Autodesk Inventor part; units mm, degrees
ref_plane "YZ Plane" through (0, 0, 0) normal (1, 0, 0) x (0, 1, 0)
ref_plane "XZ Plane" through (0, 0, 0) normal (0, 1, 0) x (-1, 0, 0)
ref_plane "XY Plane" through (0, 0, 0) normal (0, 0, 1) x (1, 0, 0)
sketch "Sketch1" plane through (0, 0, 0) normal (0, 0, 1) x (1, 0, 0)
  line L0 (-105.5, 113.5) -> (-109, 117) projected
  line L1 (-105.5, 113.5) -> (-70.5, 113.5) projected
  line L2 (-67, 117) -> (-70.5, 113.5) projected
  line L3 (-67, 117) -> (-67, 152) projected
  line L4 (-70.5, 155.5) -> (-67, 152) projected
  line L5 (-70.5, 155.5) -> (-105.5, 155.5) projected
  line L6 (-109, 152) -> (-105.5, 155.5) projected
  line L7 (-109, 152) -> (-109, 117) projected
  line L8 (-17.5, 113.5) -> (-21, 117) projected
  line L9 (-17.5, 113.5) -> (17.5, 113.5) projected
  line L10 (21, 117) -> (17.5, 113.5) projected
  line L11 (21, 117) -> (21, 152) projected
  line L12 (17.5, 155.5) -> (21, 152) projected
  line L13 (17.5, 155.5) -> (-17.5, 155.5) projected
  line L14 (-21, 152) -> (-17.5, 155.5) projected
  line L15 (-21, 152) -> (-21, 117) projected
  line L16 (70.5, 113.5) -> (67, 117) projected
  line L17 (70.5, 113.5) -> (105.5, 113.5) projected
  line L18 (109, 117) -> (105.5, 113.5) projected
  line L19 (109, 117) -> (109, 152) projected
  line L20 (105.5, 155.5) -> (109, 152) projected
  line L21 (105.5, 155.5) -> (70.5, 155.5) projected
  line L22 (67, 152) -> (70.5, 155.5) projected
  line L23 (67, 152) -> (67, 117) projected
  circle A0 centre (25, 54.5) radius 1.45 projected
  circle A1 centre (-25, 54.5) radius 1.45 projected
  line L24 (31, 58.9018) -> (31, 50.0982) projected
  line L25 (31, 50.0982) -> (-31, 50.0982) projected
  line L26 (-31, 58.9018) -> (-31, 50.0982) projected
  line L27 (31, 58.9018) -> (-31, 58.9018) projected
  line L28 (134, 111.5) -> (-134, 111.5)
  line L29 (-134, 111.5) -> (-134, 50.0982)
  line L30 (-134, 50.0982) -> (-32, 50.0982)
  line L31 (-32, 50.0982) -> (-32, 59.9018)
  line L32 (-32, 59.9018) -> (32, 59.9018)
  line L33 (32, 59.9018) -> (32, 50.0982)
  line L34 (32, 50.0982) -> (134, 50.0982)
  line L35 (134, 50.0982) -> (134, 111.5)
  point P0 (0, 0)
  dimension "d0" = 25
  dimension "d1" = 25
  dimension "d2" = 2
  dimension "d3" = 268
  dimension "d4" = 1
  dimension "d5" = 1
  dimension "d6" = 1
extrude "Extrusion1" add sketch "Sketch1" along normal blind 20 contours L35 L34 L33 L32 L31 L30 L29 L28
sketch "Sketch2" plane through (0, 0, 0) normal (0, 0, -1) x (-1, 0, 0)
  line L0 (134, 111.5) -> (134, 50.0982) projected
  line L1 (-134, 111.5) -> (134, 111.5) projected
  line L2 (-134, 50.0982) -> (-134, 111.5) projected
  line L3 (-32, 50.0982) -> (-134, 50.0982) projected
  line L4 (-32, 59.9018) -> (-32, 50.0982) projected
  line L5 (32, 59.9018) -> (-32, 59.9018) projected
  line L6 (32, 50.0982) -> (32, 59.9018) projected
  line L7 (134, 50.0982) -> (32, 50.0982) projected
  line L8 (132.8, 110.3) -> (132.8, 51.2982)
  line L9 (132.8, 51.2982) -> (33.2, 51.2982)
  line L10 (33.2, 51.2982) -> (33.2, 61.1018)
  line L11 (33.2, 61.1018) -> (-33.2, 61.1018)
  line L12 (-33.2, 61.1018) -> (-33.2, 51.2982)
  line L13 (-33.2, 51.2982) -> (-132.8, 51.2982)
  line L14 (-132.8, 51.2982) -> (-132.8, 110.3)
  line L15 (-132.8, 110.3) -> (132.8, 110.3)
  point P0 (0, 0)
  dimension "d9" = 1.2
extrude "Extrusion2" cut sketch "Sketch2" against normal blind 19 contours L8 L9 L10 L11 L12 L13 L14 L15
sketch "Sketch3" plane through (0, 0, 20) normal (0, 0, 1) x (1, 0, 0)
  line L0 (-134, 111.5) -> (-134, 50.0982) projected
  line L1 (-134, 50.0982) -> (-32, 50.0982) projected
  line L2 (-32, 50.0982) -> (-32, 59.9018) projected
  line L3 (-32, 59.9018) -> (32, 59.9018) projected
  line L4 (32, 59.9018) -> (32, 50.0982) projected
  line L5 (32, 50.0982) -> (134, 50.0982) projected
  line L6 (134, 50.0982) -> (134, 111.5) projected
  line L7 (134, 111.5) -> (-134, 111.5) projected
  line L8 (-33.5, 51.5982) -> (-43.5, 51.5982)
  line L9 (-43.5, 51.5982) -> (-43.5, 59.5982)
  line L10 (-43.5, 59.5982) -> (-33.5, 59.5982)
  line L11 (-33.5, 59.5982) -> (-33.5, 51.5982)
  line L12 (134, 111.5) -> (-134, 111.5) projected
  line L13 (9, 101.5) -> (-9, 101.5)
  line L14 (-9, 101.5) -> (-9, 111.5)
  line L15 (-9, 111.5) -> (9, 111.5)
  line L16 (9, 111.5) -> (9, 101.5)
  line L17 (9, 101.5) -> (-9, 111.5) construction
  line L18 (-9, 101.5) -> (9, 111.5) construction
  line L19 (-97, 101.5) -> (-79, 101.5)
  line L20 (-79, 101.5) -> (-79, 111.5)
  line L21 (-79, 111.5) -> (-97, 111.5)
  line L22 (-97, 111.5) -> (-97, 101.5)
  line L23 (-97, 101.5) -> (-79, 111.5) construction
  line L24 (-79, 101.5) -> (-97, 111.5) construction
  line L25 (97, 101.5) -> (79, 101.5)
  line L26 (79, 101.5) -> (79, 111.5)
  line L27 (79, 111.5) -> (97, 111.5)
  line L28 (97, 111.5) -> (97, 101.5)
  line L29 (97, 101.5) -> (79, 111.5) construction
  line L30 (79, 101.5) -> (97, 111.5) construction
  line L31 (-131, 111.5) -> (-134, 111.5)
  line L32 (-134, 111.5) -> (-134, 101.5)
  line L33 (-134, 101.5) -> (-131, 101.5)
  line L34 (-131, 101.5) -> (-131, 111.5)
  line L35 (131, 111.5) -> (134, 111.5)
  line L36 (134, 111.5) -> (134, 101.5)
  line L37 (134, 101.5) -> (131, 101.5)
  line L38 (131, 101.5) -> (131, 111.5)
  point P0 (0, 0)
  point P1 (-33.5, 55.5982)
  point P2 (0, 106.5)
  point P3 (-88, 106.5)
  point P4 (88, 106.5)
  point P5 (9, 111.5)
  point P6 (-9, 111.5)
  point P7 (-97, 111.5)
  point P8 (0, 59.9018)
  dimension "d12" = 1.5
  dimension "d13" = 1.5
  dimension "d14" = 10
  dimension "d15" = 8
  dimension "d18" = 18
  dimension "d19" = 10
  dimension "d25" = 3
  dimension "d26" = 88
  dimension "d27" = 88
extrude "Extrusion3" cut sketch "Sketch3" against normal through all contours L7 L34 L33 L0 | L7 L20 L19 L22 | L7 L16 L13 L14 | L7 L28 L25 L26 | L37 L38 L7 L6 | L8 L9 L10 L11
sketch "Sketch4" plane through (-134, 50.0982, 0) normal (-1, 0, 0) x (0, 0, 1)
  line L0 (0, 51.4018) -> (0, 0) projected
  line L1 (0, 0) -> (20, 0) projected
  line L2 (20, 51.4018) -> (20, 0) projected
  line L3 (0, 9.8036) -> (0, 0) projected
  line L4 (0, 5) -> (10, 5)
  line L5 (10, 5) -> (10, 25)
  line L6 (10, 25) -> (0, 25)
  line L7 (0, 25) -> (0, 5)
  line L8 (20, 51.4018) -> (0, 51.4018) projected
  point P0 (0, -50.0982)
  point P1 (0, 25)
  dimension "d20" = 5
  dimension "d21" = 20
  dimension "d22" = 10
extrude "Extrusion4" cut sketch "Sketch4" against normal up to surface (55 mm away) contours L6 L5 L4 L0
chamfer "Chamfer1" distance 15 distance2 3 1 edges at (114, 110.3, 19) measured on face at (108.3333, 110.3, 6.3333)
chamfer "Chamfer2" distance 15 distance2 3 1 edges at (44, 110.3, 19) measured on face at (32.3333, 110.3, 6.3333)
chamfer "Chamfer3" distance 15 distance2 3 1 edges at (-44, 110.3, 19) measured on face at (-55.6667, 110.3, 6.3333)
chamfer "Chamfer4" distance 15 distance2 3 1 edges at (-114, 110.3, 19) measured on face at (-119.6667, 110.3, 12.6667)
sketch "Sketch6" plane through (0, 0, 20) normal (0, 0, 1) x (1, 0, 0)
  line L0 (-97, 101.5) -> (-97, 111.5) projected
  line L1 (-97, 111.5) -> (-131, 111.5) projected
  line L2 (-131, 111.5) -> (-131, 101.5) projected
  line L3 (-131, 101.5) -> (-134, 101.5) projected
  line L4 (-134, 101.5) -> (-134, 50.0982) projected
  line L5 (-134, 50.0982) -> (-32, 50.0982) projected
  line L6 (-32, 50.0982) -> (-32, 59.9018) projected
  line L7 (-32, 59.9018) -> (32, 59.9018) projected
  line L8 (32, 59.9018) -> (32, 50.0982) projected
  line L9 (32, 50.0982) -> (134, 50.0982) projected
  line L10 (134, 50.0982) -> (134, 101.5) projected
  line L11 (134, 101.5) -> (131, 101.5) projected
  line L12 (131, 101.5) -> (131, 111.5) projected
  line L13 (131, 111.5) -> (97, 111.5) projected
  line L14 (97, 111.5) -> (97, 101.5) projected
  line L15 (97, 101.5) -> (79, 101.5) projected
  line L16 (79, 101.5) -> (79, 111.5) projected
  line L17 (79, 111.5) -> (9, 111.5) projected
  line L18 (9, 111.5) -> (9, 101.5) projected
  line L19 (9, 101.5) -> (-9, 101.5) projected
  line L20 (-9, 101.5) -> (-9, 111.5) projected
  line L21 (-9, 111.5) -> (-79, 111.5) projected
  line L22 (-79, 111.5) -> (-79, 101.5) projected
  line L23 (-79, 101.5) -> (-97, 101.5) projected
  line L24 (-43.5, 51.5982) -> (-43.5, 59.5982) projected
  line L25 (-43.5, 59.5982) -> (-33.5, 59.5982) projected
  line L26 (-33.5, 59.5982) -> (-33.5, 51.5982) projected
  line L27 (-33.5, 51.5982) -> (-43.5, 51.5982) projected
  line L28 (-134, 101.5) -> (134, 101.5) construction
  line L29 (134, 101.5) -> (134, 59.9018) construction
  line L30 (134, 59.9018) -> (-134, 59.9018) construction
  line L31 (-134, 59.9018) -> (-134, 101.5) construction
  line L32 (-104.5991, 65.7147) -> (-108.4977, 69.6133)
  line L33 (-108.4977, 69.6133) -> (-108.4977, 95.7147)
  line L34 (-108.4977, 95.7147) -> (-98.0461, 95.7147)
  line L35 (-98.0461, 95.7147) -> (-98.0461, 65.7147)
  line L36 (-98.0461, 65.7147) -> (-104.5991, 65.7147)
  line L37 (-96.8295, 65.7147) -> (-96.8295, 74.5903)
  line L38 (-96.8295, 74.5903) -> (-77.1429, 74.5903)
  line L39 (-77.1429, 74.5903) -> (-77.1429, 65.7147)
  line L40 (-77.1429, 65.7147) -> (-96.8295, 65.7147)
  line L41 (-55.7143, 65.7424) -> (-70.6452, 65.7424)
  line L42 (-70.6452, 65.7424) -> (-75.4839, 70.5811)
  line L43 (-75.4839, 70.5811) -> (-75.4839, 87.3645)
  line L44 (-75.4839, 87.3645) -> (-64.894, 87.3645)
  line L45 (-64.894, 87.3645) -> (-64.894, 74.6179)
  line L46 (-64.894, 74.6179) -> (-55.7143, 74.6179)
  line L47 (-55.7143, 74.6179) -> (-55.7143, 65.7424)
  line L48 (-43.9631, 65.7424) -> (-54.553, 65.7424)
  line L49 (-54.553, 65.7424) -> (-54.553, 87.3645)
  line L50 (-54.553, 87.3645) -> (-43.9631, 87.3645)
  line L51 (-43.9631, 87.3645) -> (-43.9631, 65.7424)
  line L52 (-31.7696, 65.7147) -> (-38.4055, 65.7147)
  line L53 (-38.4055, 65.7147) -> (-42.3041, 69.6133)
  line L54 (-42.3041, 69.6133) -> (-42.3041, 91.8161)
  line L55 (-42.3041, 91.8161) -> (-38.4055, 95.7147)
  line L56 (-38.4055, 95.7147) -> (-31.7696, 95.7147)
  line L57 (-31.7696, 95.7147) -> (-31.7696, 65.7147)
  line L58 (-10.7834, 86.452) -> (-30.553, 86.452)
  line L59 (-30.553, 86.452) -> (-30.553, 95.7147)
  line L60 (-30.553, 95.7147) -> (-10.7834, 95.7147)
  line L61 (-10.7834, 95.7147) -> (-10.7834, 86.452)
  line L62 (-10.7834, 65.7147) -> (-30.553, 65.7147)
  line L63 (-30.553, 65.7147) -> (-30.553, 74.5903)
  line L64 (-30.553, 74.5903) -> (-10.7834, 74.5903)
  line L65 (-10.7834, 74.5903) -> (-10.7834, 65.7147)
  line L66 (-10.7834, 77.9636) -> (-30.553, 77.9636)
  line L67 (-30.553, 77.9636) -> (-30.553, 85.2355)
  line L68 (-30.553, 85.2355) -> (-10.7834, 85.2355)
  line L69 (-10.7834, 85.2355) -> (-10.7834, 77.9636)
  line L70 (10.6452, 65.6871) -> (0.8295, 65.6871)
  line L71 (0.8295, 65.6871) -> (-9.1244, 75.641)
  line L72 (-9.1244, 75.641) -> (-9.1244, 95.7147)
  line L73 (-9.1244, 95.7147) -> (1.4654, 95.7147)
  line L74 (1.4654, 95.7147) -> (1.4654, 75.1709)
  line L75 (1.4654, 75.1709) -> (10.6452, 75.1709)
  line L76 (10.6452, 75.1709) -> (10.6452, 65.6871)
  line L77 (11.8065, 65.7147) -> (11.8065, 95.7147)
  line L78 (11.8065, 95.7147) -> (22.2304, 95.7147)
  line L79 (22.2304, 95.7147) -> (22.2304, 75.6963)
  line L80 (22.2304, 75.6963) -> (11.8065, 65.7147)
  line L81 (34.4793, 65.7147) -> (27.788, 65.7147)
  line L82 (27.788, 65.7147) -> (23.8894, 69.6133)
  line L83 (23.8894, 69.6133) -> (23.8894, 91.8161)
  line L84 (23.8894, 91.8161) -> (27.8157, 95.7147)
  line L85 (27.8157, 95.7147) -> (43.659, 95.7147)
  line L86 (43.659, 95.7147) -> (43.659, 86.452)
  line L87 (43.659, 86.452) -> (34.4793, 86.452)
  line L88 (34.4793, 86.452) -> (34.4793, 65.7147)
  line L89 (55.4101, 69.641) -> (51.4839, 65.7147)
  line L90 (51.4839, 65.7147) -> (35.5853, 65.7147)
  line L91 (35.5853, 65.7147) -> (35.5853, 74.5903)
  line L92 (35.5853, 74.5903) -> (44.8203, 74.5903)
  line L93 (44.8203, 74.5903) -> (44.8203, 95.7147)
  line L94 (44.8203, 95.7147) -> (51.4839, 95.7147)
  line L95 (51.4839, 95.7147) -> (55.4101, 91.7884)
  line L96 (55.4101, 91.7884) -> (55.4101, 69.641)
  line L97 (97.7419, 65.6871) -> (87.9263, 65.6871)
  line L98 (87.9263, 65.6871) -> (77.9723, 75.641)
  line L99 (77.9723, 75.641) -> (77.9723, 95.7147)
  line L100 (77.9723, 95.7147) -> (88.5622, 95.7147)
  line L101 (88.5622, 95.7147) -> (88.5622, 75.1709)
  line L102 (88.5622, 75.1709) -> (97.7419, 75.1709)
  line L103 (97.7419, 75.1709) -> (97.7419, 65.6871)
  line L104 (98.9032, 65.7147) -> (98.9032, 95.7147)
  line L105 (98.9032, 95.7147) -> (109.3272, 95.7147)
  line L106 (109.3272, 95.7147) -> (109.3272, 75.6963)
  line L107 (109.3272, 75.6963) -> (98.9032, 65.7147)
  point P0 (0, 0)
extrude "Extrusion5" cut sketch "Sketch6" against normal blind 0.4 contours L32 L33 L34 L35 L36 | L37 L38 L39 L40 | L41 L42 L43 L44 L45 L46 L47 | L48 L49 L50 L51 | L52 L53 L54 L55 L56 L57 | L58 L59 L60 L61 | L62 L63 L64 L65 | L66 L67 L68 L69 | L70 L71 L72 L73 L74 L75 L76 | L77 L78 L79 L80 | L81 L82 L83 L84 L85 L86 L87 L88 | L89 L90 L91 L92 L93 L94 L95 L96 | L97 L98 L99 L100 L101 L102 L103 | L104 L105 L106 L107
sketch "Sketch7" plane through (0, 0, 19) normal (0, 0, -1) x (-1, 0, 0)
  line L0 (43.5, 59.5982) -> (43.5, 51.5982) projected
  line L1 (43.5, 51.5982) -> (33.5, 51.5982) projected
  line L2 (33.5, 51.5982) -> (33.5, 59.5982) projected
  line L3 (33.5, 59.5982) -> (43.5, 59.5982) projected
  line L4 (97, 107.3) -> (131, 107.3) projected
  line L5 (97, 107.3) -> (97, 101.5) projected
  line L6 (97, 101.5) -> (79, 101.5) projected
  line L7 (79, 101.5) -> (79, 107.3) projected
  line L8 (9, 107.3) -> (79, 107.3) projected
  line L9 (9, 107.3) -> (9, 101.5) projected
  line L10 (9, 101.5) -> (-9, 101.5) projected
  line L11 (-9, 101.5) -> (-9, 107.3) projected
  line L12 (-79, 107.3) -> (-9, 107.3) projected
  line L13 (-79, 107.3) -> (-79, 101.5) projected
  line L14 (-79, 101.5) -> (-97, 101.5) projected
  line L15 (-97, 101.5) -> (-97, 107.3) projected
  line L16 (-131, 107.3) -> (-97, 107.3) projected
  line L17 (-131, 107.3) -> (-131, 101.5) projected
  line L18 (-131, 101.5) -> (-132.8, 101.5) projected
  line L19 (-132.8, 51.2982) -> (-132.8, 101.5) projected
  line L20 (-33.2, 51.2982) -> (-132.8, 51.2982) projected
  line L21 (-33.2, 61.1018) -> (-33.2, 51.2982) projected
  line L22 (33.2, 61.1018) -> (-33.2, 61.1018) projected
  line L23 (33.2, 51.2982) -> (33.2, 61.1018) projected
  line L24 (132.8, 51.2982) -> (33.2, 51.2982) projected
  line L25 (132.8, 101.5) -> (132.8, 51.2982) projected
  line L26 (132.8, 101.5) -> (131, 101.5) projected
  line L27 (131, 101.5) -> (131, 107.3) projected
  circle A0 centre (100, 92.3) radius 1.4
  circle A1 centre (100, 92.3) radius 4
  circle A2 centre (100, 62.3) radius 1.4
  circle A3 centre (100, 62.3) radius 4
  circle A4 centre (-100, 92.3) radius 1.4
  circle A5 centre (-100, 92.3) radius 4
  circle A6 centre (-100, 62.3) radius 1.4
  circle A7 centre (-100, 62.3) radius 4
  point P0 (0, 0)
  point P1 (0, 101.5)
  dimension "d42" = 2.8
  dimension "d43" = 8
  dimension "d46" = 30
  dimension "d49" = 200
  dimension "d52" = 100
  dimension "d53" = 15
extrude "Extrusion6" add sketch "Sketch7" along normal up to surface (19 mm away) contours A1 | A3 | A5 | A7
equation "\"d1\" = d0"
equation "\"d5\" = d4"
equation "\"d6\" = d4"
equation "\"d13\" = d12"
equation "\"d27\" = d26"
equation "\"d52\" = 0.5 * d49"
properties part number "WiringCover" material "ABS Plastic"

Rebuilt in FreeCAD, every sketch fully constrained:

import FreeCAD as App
import Part
import Sketcher
from FreeCAD import Vector
Q = App.Units.Quantity


def edges_at(feature, points):
    """Names of the edges that pass closest to the given points."""
    edges = feature.Shape.Edges
    near = lambda p: min(range(len(edges)), key=lambda i: edges[i].distToShape(Part.Vertex(*p))[0])
    return sorted({f"Edge{near(p) + 1}" for p in points})


def add_polygon(sketch, points):
    """Adds a closed chain of lines whose ends are joined by coincident constraints."""
    first, n = sketch.GeometryCount, len(points)
    for a, b in zip(points, points[1:] + points[:1]):
        sketch.addGeometry(Part.LineSegment(App.Vector(*a, 0), App.Vector(*b, 0)), False)
    for i in range(n):
        sketch.addConstraint(Sketcher.Constraint("Coincident", first + i, 2, first + (i + 1) % n, 1))

doc = App.newDocument("Part")
body = doc.addObject("PartDesign::Body", "Body")

# Sketch on XY plane
sketch1 = body.newObject("Sketcher::SketchObject", "Sketch")
sketch1.AttachmentSupport = (doc.getObject("XY_Plane"), [""])
sketch1.MapMode = "FlatFace"
add_polygon(sketch1, [(134, 50), (134, 112), (-134, 112), (-134, 50), (-32, 50), (-32, 60), (32, 60), (32, 50)])  # lines 0-7
sketch1.addConstraint(Sketcher.Constraint("Vertical", 0))
sketch1.addConstraint(Sketcher.Constraint("Horizontal", 1))
sketch1.addConstraint(Sketcher.Constraint("Vertical", 2))
sketch1.addConstraint(Sketcher.Constraint("Horizontal", 3))
sketch1.addConstraint(Sketcher.Constraint("Vertical", 4))
sketch1.addConstraint(Sketcher.Constraint("Horizontal", 5))
sketch1.addConstraint(Sketcher.Constraint("Vertical", 6))
sketch1.addConstraint(Sketcher.Constraint("Horizontal", 7))
sketch1.addConstraint(Sketcher.Constraint("Symmetric", 3, 2, 6, 2, -2))
sketch1.addConstraint(Sketcher.Constraint("Equal", 3, 7))
sketch1.addConstraint(Sketcher.Constraint("DistanceX", 1, 2, 1, 1, Q("268 mm")))
sketch1.addConstraint(Sketcher.Constraint("DistanceX", 3, 1, 3, 2, Q("102 mm")))
sketch1.addConstraint(Sketcher.Constraint("DistanceY", -1, 1, 0, 2, Q("111.5 mm")))
sketch1.addConstraint(Sketcher.Constraint("DistanceY", 0, 1, 0, 2, Q("61.4018 mm")))
sketch1.addConstraint(Sketcher.Constraint("DistanceY", 4, 1, 4, 2, Q("9.8036 mm")))
pad1 = body.newObject("PartDesign::Pad", "Pad")
pad1.Profile = sketch1
pad1.Length = 20

# Sketch on XY plane
sketch2 = body.newObject("Sketcher::SketchObject", "Sketch001")
sketch2.AttachmentSupport = (doc.getObject("XY_Plane"), [""])
sketch2.MapMode = "FlatFace"
add_polygon(sketch2, [(-133, 51), (-133, 110), (133, 110), (133, 51), (33, 51), (33, 61), (-33, 61), (-33, 51)])  # lines 0-7
sketch2.addConstraint(Sketcher.Constraint("Vertical", 0))
sketch2.addConstraint(Sketcher.Constraint("Horizontal", 1))
sketch2.addConstraint(Sketcher.Constraint("Vertical", 2))
sketch2.addConstraint(Sketcher.Constraint("Horizontal", 3))
sketch2.addConstraint(Sketcher.Constraint("Vertical", 4))
sketch2.addConstraint(Sketcher.Constraint("Horizontal", 5))
sketch2.addConstraint(Sketcher.Constraint("Vertical", 6))
sketch2.addConstraint(Sketcher.Constraint("Horizontal", 7))
sketch2.addConstraint(Sketcher.Constraint("Symmetric", 3, 2, 6, 2, -2))
sketch2.addConstraint(Sketcher.Constraint("Equal", 3, 7))
sketch2.addConstraint(Sketcher.Constraint("DistanceX", 1, 1, 1, 2, Q("265.6 mm")))
sketch2.addConstraint(Sketcher.Constraint("DistanceX", 3, 2, 3, 1, Q("99.6 mm")))
sketch2.addConstraint(Sketcher.Constraint("DistanceY", -1, 1, 0, 2, Q("110.3 mm")))
sketch2.addConstraint(Sketcher.Constraint("DistanceY", 0, 1, 0, 2, Q("59.0018 mm")))
sketch2.addConstraint(Sketcher.Constraint("DistanceY", 4, 1, 4, 2, Q("9.8036 mm")))
pocket1 = body.newObject("PartDesign::Pocket", "Pocket")
pocket1.Profile = sketch2
pocket1.Length = 19
pocket1.Reversed = True

# Sketch on XY plane
sketch3 = body.newObject("Sketcher::SketchObject", "Sketch002")
sketch3.AttachmentSupport = (doc.getObject("XY_Plane"), [""])
sketch3.MapMode = "FlatFace"
sketch3.AttachmentOffset = App.Placement(Vector(0, 0, 20), App.Rotation())
add_polygon(sketch3, [(-131, 111.5), (-134, 111.5), (-134, 101.5), (-131, 101.5)])  # lines 0-3
add_polygon(sketch3, [(-79, 111.5), (-97, 111.5), (-97, 101.5), (-79, 101.5)])  # lines 4-7
add_polygon(sketch3, [(9, 111.5), (-9, 111.5), (-9, 101.5), (9, 101.5)])  # lines 8-11
add_polygon(sketch3, [(97, 111.5), (79, 111.5), (79, 101.5), (97, 101.5)])  # lines 12-15
add_polygon(sketch3, [(131, 101.5), (134, 101.5), (134, 111.5), (131, 111.5)])  # lines 16-19
add_polygon(sketch3, [(-43.5, 51.6), (-33.5, 51.6), (-33.5, 59.6), (-43.5, 59.6)])  # lines 20-23
sketch3.addConstraint(Sketcher.Constraint("Horizontal", 0))
sketch3.addConstraint(Sketcher.Constraint("Vertical", 1))
sketch3.addConstraint(Sketcher.Constraint("Horizontal", 2))
sketch3.addConstraint(Sketcher.Constraint("Vertical", 3))
sketch3.addConstraint(Sketcher.Constraint("Horizontal", 4))
sketch3.addConstraint(Sketcher.Constraint("Vertical", 5))
sketch3.addConstraint(Sketcher.Constraint("Horizontal", 6))
sketch3.addConstraint(Sketcher.Constraint("Vertical", 7))
sketch3.addConstraint(Sketcher.Constraint("Horizontal", 8))
sketch3.addConstraint(Sketcher.Constraint("Vertical", 9))
sketch3.addConstraint(Sketcher.Constraint("Horizontal", 10))
sketch3.addConstraint(Sketcher.Constraint("Vertical", 11))
sketch3.addConstraint(Sketcher.Constraint("Horizontal", 12))
sketch3.addConstraint(Sketcher.Constraint("Vertical", 13))
sketch3.addConstraint(Sketcher.Constraint("Horizontal", 14))
sketch3.addConstraint(Sketcher.Constraint("Vertical", 15))
sketch3.addConstraint(Sketcher.Constraint("Horizontal", 16))
sketch3.addConstraint(Sketcher.Constraint("Vertical", 17))
sketch3.addConstraint(Sketcher.Constraint("Horizontal", 18))
sketch3.addConstraint(Sketcher.Constraint("Vertical", 19))
sketch3.addConstraint(Sketcher.Constraint("Horizontal", 20))
sketch3.addConstraint(Sketcher.Constraint("Vertical", 21))
sketch3.addConstraint(Sketcher.Constraint("Horizontal", 22))
sketch3.addConstraint(Sketcher.Constraint("Vertical", 23))
sketch3.addConstraint(Sketcher.Constraint("Symmetric", 7, 2, 12, 2, -2))
sketch3.addConstraint(Sketcher.Constraint("Symmetric", 5, 2, 14, 2, -2))
sketch3.addConstraint(Sketcher.Constraint("Symmetric", 1, 2, 16, 2, -2))
sketch3.addConstraint(Sketcher.Constraint("Symmetric", 3, 2, 18, 2, -2))
sketch3.addConstraint(Sketcher.Constraint("Horizontal", 3, 2, 4, 2))
sketch3.addConstraint(Sketcher.Constraint("Horizontal", 2, 2, 5, 2))
sketch3.addConstraint(Sketcher.Constraint("Horizontal", 7, 2, 8, 2))
sketch3.addConstraint(Sketcher.Constraint("Horizontal", 6, 2, 9, 2))
sketch3.addConstraint(Sketcher.Constraint("Equal", 6, 8))
sketch3.addConstraint(Sketcher.Constraint("Equal", 22, 1))
sketch3.addConstraint(Sketcher.Constraint("DistanceX", 0, 2, 0, 1, Q("3 mm")))
sketch3.addConstraint(Sketcher.Constraint("DistanceX", 4, 2, 4, 1, Q("18 mm")))
sketch3.addConstraint(Sketcher.Constraint("DistanceX", 20, 1, 20, 2, Q("10 mm")))
sketch3.addConstraint(Sketcher.Constraint("DistanceY", 21, 1, 21, 2, Q("8 mm")))
sketch3.addConstraint(Sketcher.Constraint("DistanceX", 4, 2, 8, 2, Q("88 mm")))
sketch3.addConstraint(Sketcher.Constraint("DistanceX", 8, 2, 12, 2, Q("88 mm")))
sketch3.addConstraint(Sketcher.Constraint("DistanceX", 0, 2, -1, 1, Q("134 mm")))
sketch3.addConstraint(Sketcher.Constraint("DistanceY", -1, 1, 0, 2, Q("111.5 mm")))
sketch3.addConstraint(Sketcher.Constraint("DistanceX", 20, 2, -1, 1, Q("33.5 mm")))
sketch3.addConstraint(Sketcher.Constraint("DistanceY", -1, 1, 20, 2, Q("51.5982 mm")))
pocket2 = body.newObject("PartDesign::Pocket", "Pocket001")
pocket2.Profile = sketch3
pocket2.Type = "ThroughAll"

# Sketch on YZ plane
sketch4 = body.newObject("Sketcher::SketchObject", "Sketch003")
sketch4.AttachmentSupport = (doc.getObject("YZ_Plane"), [""])
sketch4.MapMode = "FlatFace"
sketch4.AttachmentOffset = App.Placement(Vector(0, 0, -134), App.Rotation())
add_polygon(sketch4, [(75, 10), (75, 0), (55, 0), (55, 10)])  # lines 0-3
sketch4.addConstraint(Sketcher.Constraint("Vertical", 0))
sketch4.addConstraint(Sketcher.Constraint("Horizontal", 1))
sketch4.addConstraint(Sketcher.Constraint("Vertical", 2))
sketch4.addConstraint(Sketcher.Constraint("Horizontal", 3))
sketch4.addConstraint(Sketcher.Constraint("PointOnObject", 0, 2, -1))
sketch4.addConstraint(Sketcher.Constraint("DistanceX", 1, 2, 1, 1, Q("20 mm")))
sketch4.addConstraint(Sketcher.Constraint("DistanceY", 0, 2, 0, 1, Q("10 mm")))
sketch4.addConstraint(Sketcher.Constraint("DistanceX", -1, 1, 0, 2, Q("75.0982 mm")))
pocket3 = body.newObject("PartDesign::Pocket", "Pocket002")
pocket3.Profile = sketch4
pocket3.Length = 55
pocket3.Reversed = True
doc.recompute()

chamfer = body.newObject("PartDesign::Chamfer", "Chamfer")
chamfer.Base = (pocket3, edges_at(pocket3, [(114, 110.3, 19)]))
chamfer.ChamferType = "Two distances"
chamfer.Size = 15
chamfer.Size2 = 3
chamfer.FlipDirection = True
doc.recompute()

chamfer2 = body.newObject("PartDesign::Chamfer", "Chamfer001")
chamfer2.Base = (chamfer, edges_at(chamfer, [(44, 110.3, 19)]))
chamfer2.ChamferType = "Two distances"
chamfer2.Size = 15
chamfer2.Size2 = 3
chamfer2.FlipDirection = True
doc.recompute()

chamfer3 = body.newObject("PartDesign::Chamfer", "Chamfer002")
chamfer3.Base = (chamfer2, edges_at(chamfer2, [(-44, 110.3, 19)]))
chamfer3.ChamferType = "Two distances"
chamfer3.Size = 15
chamfer3.Size2 = 3
chamfer3.FlipDirection = True
doc.recompute()

chamfer4 = body.newObject("PartDesign::Chamfer", "Chamfer003")
chamfer4.Base = (chamfer3, edges_at(chamfer3, [(-114, 110.3, 19)]))
chamfer4.ChamferType = "Two distances"
chamfer4.Size = 15
chamfer4.Size2 = 3
chamfer4.FlipDirection = True

# Sketch on XY plane
sketch5 = body.newObject("Sketcher::SketchObject", "Sketch004")
sketch5.AttachmentSupport = (doc.getObject("XY_Plane"), [""])
sketch5.MapMode = "FlatFace"
sketch5.AttachmentOffset = App.Placement(Vector(0, 0, 20), App.Rotation())
add_polygon(sketch5, [(-108, 70), (-105, 66), (-98, 66), (-98, 96), (-108, 96)])  # lines 0-4
add_polygon(sketch5, [(-97, 75), (-97, 66), (-77, 66), (-77, 75)])  # lines 5-8
add_polygon(sketch5, [(-71, 66), (-56, 66), (-56, 75), (-65, 75), (-65, 87), (-75, 87), (-75, 71)])  # lines 9-15
add_polygon(sketch5, [(-55, 66), (-44, 66), (-44, 87), (-55, 87)])  # lines 16-19
add_polygon(sketch5, [(-38, 66), (-32, 66), (-32, 96), (-38, 96), (-42, 92), (-42, 70)])  # lines 20-25
add_polygon(sketch5, [(-31, 86), (-11, 86), (-11, 96), (-31, 96)])  # lines 26-29
add_polygon(sketch5, [(-31, 66), (-11, 66), (-11, 75), (-31, 75)])  # lines 30-33
add_polygon(sketch5, [(-31, 78), (-11, 78), (-11, 85), (-31, 85)])  # lines 34-37
add_polygon(sketch5, [(1, 66), (11, 66), (11, 75), (1, 75), (1, 96), (-9, 96), (-9, 76)])  # lines 38-44
add_polygon(sketch5, [(12, 96), (12, 66), (22, 76), (22, 96)])  # lines 45-48
add_polygon(sketch5, [(28, 66), (34, 66), (34, 86), (44, 86), (44, 96), (28, 96), (24, 92), (24, 70)])  # lines 49-56
add_polygon(sketch5, [(51, 66), (55, 70), (55, 92), (51, 96), (45, 96), (45, 75), (36, 75), (36, 66)])  # lines 57-64
add_polygon(sketch5, [(88, 66), (98, 66), (98, 75), (89, 75), (89, 96), (78, 96), (78, 76)])  # lines 65-71
add_polygon(sketch5, [(99, 96), (99, 66), (109, 76), (109, 96)])  # lines 72-75
sketch5.addConstraint(Sketcher.Constraint("Horizontal", 1))
sketch5.addConstraint(Sketcher.Constraint("Vertical", 2))
sketch5.addConstraint(Sketcher.Constraint("Horizontal", 3))
sketch5.addConstraint(Sketcher.Constraint("Vertical", 4))
sketch5.addConstraint(Sketcher.Constraint("Vertical", 5))
sketch5.addConstraint(Sketcher.Constraint("Horizontal", 6))
sketch5.addConstraint(Sketcher.Constraint("Vertical", 7))
sketch5.addConstraint(Sketcher.Constraint("Horizontal", 8))
sketch5.addConstraint(Sketcher.Constraint("Horizontal", 9))
sketch5.addConstraint(Sketcher.Constraint("Vertical", 10))
sketch5.addConstraint(Sketcher.Constraint("Horizontal", 11))
sketch5.addConstraint(Sketcher.Constraint("Vertical", 12))
sketch5.addConstraint(Sketcher.Constraint("Horizontal", 13))
sketch5.addConstraint(Sketcher.Constraint("Vertical", 14))
sketch5.addConstraint(Sketcher.Constraint("Horizontal", 16))
sketch5.addConstraint(Sketcher.Constraint("Vertical", 17))
sketch5.addConstraint(Sketcher.Constraint("Horizontal", 18))
sketch5.addConstraint(Sketcher.Constraint("Vertical", 19))
sketch5.addConstraint(Sketcher.Constraint("Horizontal", 20))
sketch5.addConstraint(Sketcher.Constraint("Vertical", 21))
sketch5.addConstraint(Sketcher.Constraint("Horizontal", 22))
sketch5.addConstraint(Sketcher.Constraint("Vertical", 24))
sketch5.addConstraint(Sketcher.Constraint("Horizontal", 26))
sketch5.addConstraint(Sketcher.Constraint("Vertical", 27))
sketch5.addConstraint(Sketcher.Constraint("Horizontal", 28))
sketch5.addConstraint(Sketcher.Constraint("Vertical", 29))
sketch5.addConstraint(Sketcher.Constraint("Horizontal", 30))
sketch5.addConstraint(Sketcher.Constraint("Vertical", 31))
sketch5.addConstraint(Sketcher.Constraint("Horizontal", 32))
sketch5.addConstraint(Sketcher.Constraint("Vertical", 33))
sketch5.addConstraint(Sketcher.Constraint("Horizontal", 34))
sketch5.addConstraint(Sketcher.Constraint("Vertical", 35))
sketch5.addConstraint(Sketcher.Constraint("Horizontal", 36))
sketch5.addConstraint(Sketcher.Constraint("Vertical", 37))
sketch5.addConstraint(Sketcher.Constraint("Horizontal", 38))
sketch5.addConstraint(Sketcher.Constraint("Vertical", 39))
sketch5.addConstraint(Sketcher.Constraint("Horizontal", 40))
sketch5.addConstraint(Sketcher.Constraint("Vertical", 41))
sketch5.addConstraint(Sketcher.Constraint("Horizontal", 42))
sketch5.addConstraint(Sketcher.Constraint("Vertical", 43))
sketch5.addConstraint(Sketcher.Constraint("Vertical", 45))
sketch5.addConstraint(Sketcher.Constraint("Vertical", 47))
sketch5.addConstraint(Sketcher.Constraint("Horizontal", 48))
sketch5.addConstraint(Sketcher.Constraint("Horizontal", 49))
sketch5.addConstraint(Sketcher.Constraint("Vertical", 50))
sketch5.addConstraint(Sketcher.Constraint("Horizontal", 51))
sketch5.addConstraint(Sketcher.Constraint("Vertical", 52))
sketch5.addConstraint(Sketcher.Constraint("Horizontal", 53))
sketch5.addConstraint(Sketcher.Constraint("Vertical", 55))
sketch5.addConstraint(Sketcher.Constraint("Vertical", 58))
sketch5.addConstraint(Sketcher.Constraint("Horizontal", 60))
sketch5.addConstraint(Sketcher.Constraint("Vertical", 61))
sketch5.addConstraint(Sketcher.Constraint("Horizontal", 62))
sketch5.addConstraint(Sketcher.Constraint("Vertical", 63))
sketch5.addConstraint(Sketcher.Constraint("Horizontal", 64))
sketch5.addConstraint(Sketcher.Constraint("Horizontal", 65))
sketch5.addConstraint(Sketcher.Constraint("Vertical", 66))
sketch5.addConstraint(Sketcher.Constraint("Horizontal", 67))
sketch5.addConstraint(Sketcher.Constraint("Vertical", 68))
sketch5.addConstraint(Sketcher.Constraint("Horizontal", 69))
sketch5.addConstraint(Sketcher.Constraint("Vertical", 70))
sketch5.addConstraint(Sketcher.Constraint("Vertical", 72))
sketch5.addConstraint(Sketcher.Constraint("Vertical", 74))
sketch5.addConstraint(Sketcher.Constraint("Horizontal", 75))
sketch5.addConstraint(Sketcher.Constraint("Parallel", 0, 15))
sketch5.addConstraint(Sketcher.Constraint("Perpendicular", 15, 23))
sketch5.addConstraint(Sketcher.Constraint("Perpendicular", 23, 25))
sketch5.addConstraint(Sketcher.Constraint("Parallel", 25, 44))
sketch5.addConstraint(Sketcher.Constraint("Parallel", 44, 56))
sketch5.addConstraint(Sketcher.Constraint("Perpendicular", 56, 57))
sketch5.addConstraint(Sketcher.Constraint("Perpendicular", 57, 59))
sketch5.addConstraint(Sketcher.Constraint("Parallel", 59, 71))
sketch5.addConstraint(Sketcher.Constraint("Parallel", 46, 73))
sketch5.addConstraint(Sketcher.Constraint("Horizontal", 1, 2, 5, 2))
sketch5.addConstraint(Sketcher.Constraint("Horizontal", 15, 2, 16, 2))
sketch5.addConstraint(Sketcher.Constraint("Horizontal", 13, 2, 17, 2))
sketch5.addConstraint(Sketcher.Constraint("Horizontal", 6, 2, 20, 2))
sketch5.addConstraint(Sketcher.Constraint("Horizontal", 3, 2, 21, 2))
sketch5.addConstraint(Sketcher.Constraint("Horizontal", 4, 2, 24, 2))
sketch5.addConstraint(Sketcher.Constraint("Horizontal", 22, 2, 27, 2))
sketch5.addConstraint(Sketcher.Constraint("Horizontal", 25, 2, 30, 2))
sketch5.addConstraint(Sketcher.Constraint("Horizontal", 8, 2, 31, 2))
sketch5.addConstraint(Sketcher.Constraint("Horizontal", 28, 2, 41, 2))
sketch5.addConstraint(Sketcher.Constraint("Horizontal", 33, 2, 45, 2))
sketch5.addConstraint(Sketcher.Constraint("Horizontal", 42, 2, 47, 2))
sketch5.addConstraint(Sketcher.Constraint("Horizontal", 45, 2, 49, 2))
sketch5.addConstraint(Sketcher.Constraint("Horizontal", 29, 2, 50, 2))
sketch5.addConstraint(Sketcher.Constraint("Horizontal", 48, 2, 52, 2))
sketch5.addConstraint(Sketcher.Constraint("Horizontal", 23, 2, 54, 2))
sketch5.addConstraint(Sketcher.Constraint("Horizontal", 24, 2, 55, 2))
sketch5.addConstraint(Sketcher.Constraint("Horizontal", 53, 2, 59, 2))
sketch5.addConstraint(Sketcher.Constraint("Horizontal", 32, 2, 61, 2))
sketch5.addConstraint(Sketcher.Constraint("Horizontal", 56, 2, 63, 2))
sketch5.addConstraint(Sketcher.Constraint("Horizontal", 44, 2, 65, 2))
sketch5.addConstraint(Sketcher.Constraint("Horizontal", 40, 2, 66, 2))
sketch5.addConstraint(Sketcher.Constraint("Horizontal", 60, 2, 68, 2))
sketch5.addConstraint(Sketcher.Constraint("Horizontal", 43, 2, 70, 2))
sketch5.addConstraint(Sketcher.Constraint("Horizontal", 64, 2, 72, 2))
sketch5.addConstraint(Sketcher.Constraint("Horizontal", 46, 2, 73, 2))
sketch5.addConstraint(Sketcher.Constraint("Horizontal", 69, 2, 74, 2))
sketch5.addConstraint(Sketcher.Constraint("Vertical", 22, 2, 25, 2))
sketch5.addConstraint(Sketcher.Constraint("Vertical", 27, 2, 30, 2))
sketch5.addConstraint(Sketcher.Constraint("Vertical", 29, 2, 32, 2))
sketch5.addConstraint(Sketcher.Constraint("Vertical", 31, 2, 34, 2))
sketch5.addConstraint(Sketcher.Constraint("Vertical", 33, 2, 36, 2))
sketch5.addConstraint(Sketcher.Constraint("Vertical", 59, 2, 64, 2))
sketch5.addConstraint(Sketcher.Constraint("Equal", 13, 16))
sketch5.addConstraint(Sketcher.Constraint("Equal", 11, 40))
sketch5.addConstraint(Sketcher.Constraint("Equal", 18, 42))
sketch5.addConstraint(Sketcher.Constraint("Equal", 40, 51))
sketch5.addConstraint(Sketcher.Constraint("Equal", 38, 65))
sketch5.addConstraint(Sketcher.Constraint("Equal", 51, 67))
sketch5.addConstraint(Sketcher.Constraint("Equal", 7, 10))
sketch5.addConstraint(Sketcher.Constraint("Equal", 0, 23))
sketch5.addConstraint(Sketcher.Constraint("DistanceY", 2, 1, 2, 2, Q("30 mm")))
sketch5.addConstraint(Sketcher.Constraint("DistanceX", 13, 2, 13, 1, Q("10.59 mm")))
sketch5.addConstraint(Sketcher.Constraint("DistanceX", 1, 1, 1, 2, Q("6.553 mm")))
sketch5.addConstraint(Sketcher.Constraint("DistanceX", 9, 1, 9, 2, Q("14.931 mm")))
sketch5.addConstraint(Sketcher.Constraint("DistanceX", 20, 1, 20, 2, Q("6.636 mm")))
sketch5.addConstraint(Sketcher.Constraint("DistanceX", 48, 2, 48, 1, Q("10.424 mm")))
sketch5.addConstraint(Sketcher.Constraint("DistanceX", 62, 2, 62, 1, Q("9.235 mm")))
sketch5.addConstraint(Sketcher.Constraint("DistanceY", 17, 1, 17, 2, Q("21.622 mm")))
sketch5.addConstraint(Sketcher.Constraint("DistanceY", 35, 1, 35, 2, Q("7.272 mm")))
sketch5.addConstraint(Sketcher.Constraint("DistanceX", -1, 1, 57, 2, Q("55.41 mm")))
sketch5.addConstraint(Sketcher.Constraint("Distance", 15, Q("6.843 mm")))
sketch5.addConstraint(Sketcher.Constraint("Distance", 44, Q("14.077 mm")))
sketch5.addConstraint(Sketcher.Constraint("Distance", 54, Q("5.533 mm")))
sketch5.addConstraint(Sketcher.Constraint("DistanceX", 3, 2, 3, 1, Q("10.4516 mm")))
sketch5.addConstraint(Sketcher.Constraint("DistanceX", 6, 1, 6, 2, Q("19.6866 mm")))
sketch5.addConstraint(Sketcher.Constraint("DistanceX", 26, 1, 26, 2, Q("19.7696 mm")))
sketch5.addConstraint(Sketcher.Constraint("DistanceX", 49, 1, 49, 2, Q("6.6913 mm")))
sketch5.addConstraint(Sketcher.Constraint("DistanceX", 60, 2, 60, 1, Q("6.6636 mm")))
sketch5.addConstraint(Sketcher.Constraint("DistanceY", 5, 2, 5, 1, Q("8.8756 mm")))
sketch5.addConstraint(Sketcher.Constraint("DistanceY", 27, 1, 27, 2, Q("9.2627 mm")))
sketch5.addConstraint(Sketcher.Constraint("DistanceY", 39, 1, 39, 2, Q("9.4838 mm")))
sketch5.addConstraint(Sketcher.Constraint("DistanceY", 41, 1, 41, 2, Q("20.5438 mm")))
sketch5.addConstraint(Sketcher.Constraint("DistanceY", 47, 1, 47, 2, Q("20.0184 mm")))
sketch5.addConstraint(Sketcher.Constraint("DistanceY", 58, 1, 58, 2, Q("22.1474 mm")))
sketch5.addConstraint(Sketcher.Constraint("DistanceX", 0, 2, -1, 1, Q("104.599 mm")))
sketch5.addConstraint(Sketcher.Constraint("DistanceX", 6, 2, -1, 1, Q("77.143 mm")))
sketch5.addConstraint(Sketcher.Constraint("DistanceY", -1, 1, 10, 2, Q("74.618 mm")))
sketch5.addConstraint(Sketcher.Constraint("DistanceX", 11, 2, -1, 1, Q("64.894 mm")))
sketch5.addConstraint(Sketcher.Constraint("DistanceX", 16, 2, -1, 1, Q("43.963 mm")))
sketch5.addConstraint(Sketcher.Constraint("DistanceX", 23, 2, -1, 1, Q("42.304 mm")))
sketch5.addConstraint(Sketcher.Constraint("DistanceY", -1, 1, 23, 2, Q("91.816 mm")))
sketch5.addConstraint(Sketcher.Constraint("DistanceX", 28, 2, -1, 1, Q("30.553 mm")))
sketch5.addConstraint(Sketcher.Constraint("DistanceX", -1, 1, 51, 2, Q("43.659 mm")))
sketch5.addConstraint(Sketcher.Constraint("DistanceX", -1, 1, 65, 2, Q("97.742 mm")))
sketch5.addConstraint(Sketcher.Constraint("DistanceY", -1, 1, 34, 2, Q("77.9636 mm")))
sketch5.addConstraint(Sketcher.Constraint("DistanceX", -1, 1, 38, 2, Q("10.6452 mm")))
sketch5.addConstraint(Sketcher.Constraint("DistanceX", -1, 1, 45, 2, Q("11.8065 mm")))
sketch5.addConstraint(Sketcher.Constraint("DistanceX", -1, 1, 72, 2, Q("98.9032 mm")))
pocket4 = body.newObject("PartDesign::Pocket", "Pocket003")
pocket4.Profile = sketch5
pocket4.Length = 0.4

# Sketch on XY plane
sketch6 = body.newObject("Sketcher::SketchObject", "Sketch005")
sketch6.AttachmentSupport = (doc.getObject("XY_Plane"), [""])
sketch6.MapMode = "FlatFace"
sketch6.AttachmentOffset = App.Placement(Vector(0, 0, 19), App.Rotation())
sketch6.addGeometry(Part.Circle(Vector(-100, 92.3, 0), Vector(0, 0, 1), 4), False)
sketch6.addGeometry(Part.Circle(Vector(-100, 92.3, 0), Vector(0, 0, 1), 1.4), False)
sketch6.addGeometry(Part.Circle(Vector(-100, 62.3, 0), Vector(0, 0, 1), 4), False)
sketch6.addGeometry(Part.Circle(Vector(-100, 62.3, 0), Vector(0, 0, 1), 1.4), False)
sketch6.addGeometry(Part.Circle(Vector(100, 92.3, 0), Vector(0, 0, 1), 4), False)
sketch6.addGeometry(Part.Circle(Vector(100, 92.3, 0), Vector(0, 0, 1), 1.4), False)
sketch6.addGeometry(Part.Circle(Vector(100, 62.3, 0), Vector(0, 0, 1), 4), False)
sketch6.addGeometry(Part.Circle(Vector(100, 62.3, 0), Vector(0, 0, 1), 1.4), False)
sketch6.addConstraint(Sketcher.Constraint("Coincident", 1, 3, 0, 3))
sketch6.addConstraint(Sketcher.Constraint("Coincident", 3, 3, 2, 3))
sketch6.addConstraint(Sketcher.Constraint("Coincident", 5, 3, 4, 3))
sketch6.addConstraint(Sketcher.Constraint("Coincident", 7, 3, 6, 3))
sketch6.addConstraint(Sketcher.Constraint("Equal", 0, 2))
sketch6.addConstraint(Sketcher.Constraint("Equal", 1, 3))
sketch6.addConstraint(Sketcher.Constraint("Equal", 2, 4))
sketch6.addConstraint(Sketcher.Constraint("Equal", 3, 5))
sketch6.addConstraint(Sketcher.Constraint("Equal", 4, 6))
sketch6.addConstraint(Sketcher.Constraint("Equal", 5, 7))
sketch6.addConstraint(Sketcher.Constraint("Symmetric", 0, 3, 4, 3, -2))
sketch6.addConstraint(Sketcher.Constraint("Symmetric", 2, 3, 6, 3, -2))
sketch6.addConstraint(Sketcher.Constraint("Vertical", 1, 3, 2, 3))
sketch6.addConstraint(Sketcher.Constraint("Diameter", 0, Q("8 mm")))
sketch6.addConstraint(Sketcher.Constraint("Diameter", 1, Q("2.8 mm")))
sketch6.addConstraint(Sketcher.Constraint("DistanceX", 0, 3, -1, 1, Q("100 mm")))
sketch6.addConstraint(Sketcher.Constraint("DistanceY", 2, 3, 0, 3, Q("30 mm")))
sketch6.addConstraint(Sketcher.Constraint("DistanceY", -1, 1, 0, 3, Q("92.3 mm")))
pad2 = body.newObject("PartDesign::Pad", "Pad001")
pad2.Profile = sketch6
pad2.Length = 19
pad2.Reversed = True

doc.recompute()
